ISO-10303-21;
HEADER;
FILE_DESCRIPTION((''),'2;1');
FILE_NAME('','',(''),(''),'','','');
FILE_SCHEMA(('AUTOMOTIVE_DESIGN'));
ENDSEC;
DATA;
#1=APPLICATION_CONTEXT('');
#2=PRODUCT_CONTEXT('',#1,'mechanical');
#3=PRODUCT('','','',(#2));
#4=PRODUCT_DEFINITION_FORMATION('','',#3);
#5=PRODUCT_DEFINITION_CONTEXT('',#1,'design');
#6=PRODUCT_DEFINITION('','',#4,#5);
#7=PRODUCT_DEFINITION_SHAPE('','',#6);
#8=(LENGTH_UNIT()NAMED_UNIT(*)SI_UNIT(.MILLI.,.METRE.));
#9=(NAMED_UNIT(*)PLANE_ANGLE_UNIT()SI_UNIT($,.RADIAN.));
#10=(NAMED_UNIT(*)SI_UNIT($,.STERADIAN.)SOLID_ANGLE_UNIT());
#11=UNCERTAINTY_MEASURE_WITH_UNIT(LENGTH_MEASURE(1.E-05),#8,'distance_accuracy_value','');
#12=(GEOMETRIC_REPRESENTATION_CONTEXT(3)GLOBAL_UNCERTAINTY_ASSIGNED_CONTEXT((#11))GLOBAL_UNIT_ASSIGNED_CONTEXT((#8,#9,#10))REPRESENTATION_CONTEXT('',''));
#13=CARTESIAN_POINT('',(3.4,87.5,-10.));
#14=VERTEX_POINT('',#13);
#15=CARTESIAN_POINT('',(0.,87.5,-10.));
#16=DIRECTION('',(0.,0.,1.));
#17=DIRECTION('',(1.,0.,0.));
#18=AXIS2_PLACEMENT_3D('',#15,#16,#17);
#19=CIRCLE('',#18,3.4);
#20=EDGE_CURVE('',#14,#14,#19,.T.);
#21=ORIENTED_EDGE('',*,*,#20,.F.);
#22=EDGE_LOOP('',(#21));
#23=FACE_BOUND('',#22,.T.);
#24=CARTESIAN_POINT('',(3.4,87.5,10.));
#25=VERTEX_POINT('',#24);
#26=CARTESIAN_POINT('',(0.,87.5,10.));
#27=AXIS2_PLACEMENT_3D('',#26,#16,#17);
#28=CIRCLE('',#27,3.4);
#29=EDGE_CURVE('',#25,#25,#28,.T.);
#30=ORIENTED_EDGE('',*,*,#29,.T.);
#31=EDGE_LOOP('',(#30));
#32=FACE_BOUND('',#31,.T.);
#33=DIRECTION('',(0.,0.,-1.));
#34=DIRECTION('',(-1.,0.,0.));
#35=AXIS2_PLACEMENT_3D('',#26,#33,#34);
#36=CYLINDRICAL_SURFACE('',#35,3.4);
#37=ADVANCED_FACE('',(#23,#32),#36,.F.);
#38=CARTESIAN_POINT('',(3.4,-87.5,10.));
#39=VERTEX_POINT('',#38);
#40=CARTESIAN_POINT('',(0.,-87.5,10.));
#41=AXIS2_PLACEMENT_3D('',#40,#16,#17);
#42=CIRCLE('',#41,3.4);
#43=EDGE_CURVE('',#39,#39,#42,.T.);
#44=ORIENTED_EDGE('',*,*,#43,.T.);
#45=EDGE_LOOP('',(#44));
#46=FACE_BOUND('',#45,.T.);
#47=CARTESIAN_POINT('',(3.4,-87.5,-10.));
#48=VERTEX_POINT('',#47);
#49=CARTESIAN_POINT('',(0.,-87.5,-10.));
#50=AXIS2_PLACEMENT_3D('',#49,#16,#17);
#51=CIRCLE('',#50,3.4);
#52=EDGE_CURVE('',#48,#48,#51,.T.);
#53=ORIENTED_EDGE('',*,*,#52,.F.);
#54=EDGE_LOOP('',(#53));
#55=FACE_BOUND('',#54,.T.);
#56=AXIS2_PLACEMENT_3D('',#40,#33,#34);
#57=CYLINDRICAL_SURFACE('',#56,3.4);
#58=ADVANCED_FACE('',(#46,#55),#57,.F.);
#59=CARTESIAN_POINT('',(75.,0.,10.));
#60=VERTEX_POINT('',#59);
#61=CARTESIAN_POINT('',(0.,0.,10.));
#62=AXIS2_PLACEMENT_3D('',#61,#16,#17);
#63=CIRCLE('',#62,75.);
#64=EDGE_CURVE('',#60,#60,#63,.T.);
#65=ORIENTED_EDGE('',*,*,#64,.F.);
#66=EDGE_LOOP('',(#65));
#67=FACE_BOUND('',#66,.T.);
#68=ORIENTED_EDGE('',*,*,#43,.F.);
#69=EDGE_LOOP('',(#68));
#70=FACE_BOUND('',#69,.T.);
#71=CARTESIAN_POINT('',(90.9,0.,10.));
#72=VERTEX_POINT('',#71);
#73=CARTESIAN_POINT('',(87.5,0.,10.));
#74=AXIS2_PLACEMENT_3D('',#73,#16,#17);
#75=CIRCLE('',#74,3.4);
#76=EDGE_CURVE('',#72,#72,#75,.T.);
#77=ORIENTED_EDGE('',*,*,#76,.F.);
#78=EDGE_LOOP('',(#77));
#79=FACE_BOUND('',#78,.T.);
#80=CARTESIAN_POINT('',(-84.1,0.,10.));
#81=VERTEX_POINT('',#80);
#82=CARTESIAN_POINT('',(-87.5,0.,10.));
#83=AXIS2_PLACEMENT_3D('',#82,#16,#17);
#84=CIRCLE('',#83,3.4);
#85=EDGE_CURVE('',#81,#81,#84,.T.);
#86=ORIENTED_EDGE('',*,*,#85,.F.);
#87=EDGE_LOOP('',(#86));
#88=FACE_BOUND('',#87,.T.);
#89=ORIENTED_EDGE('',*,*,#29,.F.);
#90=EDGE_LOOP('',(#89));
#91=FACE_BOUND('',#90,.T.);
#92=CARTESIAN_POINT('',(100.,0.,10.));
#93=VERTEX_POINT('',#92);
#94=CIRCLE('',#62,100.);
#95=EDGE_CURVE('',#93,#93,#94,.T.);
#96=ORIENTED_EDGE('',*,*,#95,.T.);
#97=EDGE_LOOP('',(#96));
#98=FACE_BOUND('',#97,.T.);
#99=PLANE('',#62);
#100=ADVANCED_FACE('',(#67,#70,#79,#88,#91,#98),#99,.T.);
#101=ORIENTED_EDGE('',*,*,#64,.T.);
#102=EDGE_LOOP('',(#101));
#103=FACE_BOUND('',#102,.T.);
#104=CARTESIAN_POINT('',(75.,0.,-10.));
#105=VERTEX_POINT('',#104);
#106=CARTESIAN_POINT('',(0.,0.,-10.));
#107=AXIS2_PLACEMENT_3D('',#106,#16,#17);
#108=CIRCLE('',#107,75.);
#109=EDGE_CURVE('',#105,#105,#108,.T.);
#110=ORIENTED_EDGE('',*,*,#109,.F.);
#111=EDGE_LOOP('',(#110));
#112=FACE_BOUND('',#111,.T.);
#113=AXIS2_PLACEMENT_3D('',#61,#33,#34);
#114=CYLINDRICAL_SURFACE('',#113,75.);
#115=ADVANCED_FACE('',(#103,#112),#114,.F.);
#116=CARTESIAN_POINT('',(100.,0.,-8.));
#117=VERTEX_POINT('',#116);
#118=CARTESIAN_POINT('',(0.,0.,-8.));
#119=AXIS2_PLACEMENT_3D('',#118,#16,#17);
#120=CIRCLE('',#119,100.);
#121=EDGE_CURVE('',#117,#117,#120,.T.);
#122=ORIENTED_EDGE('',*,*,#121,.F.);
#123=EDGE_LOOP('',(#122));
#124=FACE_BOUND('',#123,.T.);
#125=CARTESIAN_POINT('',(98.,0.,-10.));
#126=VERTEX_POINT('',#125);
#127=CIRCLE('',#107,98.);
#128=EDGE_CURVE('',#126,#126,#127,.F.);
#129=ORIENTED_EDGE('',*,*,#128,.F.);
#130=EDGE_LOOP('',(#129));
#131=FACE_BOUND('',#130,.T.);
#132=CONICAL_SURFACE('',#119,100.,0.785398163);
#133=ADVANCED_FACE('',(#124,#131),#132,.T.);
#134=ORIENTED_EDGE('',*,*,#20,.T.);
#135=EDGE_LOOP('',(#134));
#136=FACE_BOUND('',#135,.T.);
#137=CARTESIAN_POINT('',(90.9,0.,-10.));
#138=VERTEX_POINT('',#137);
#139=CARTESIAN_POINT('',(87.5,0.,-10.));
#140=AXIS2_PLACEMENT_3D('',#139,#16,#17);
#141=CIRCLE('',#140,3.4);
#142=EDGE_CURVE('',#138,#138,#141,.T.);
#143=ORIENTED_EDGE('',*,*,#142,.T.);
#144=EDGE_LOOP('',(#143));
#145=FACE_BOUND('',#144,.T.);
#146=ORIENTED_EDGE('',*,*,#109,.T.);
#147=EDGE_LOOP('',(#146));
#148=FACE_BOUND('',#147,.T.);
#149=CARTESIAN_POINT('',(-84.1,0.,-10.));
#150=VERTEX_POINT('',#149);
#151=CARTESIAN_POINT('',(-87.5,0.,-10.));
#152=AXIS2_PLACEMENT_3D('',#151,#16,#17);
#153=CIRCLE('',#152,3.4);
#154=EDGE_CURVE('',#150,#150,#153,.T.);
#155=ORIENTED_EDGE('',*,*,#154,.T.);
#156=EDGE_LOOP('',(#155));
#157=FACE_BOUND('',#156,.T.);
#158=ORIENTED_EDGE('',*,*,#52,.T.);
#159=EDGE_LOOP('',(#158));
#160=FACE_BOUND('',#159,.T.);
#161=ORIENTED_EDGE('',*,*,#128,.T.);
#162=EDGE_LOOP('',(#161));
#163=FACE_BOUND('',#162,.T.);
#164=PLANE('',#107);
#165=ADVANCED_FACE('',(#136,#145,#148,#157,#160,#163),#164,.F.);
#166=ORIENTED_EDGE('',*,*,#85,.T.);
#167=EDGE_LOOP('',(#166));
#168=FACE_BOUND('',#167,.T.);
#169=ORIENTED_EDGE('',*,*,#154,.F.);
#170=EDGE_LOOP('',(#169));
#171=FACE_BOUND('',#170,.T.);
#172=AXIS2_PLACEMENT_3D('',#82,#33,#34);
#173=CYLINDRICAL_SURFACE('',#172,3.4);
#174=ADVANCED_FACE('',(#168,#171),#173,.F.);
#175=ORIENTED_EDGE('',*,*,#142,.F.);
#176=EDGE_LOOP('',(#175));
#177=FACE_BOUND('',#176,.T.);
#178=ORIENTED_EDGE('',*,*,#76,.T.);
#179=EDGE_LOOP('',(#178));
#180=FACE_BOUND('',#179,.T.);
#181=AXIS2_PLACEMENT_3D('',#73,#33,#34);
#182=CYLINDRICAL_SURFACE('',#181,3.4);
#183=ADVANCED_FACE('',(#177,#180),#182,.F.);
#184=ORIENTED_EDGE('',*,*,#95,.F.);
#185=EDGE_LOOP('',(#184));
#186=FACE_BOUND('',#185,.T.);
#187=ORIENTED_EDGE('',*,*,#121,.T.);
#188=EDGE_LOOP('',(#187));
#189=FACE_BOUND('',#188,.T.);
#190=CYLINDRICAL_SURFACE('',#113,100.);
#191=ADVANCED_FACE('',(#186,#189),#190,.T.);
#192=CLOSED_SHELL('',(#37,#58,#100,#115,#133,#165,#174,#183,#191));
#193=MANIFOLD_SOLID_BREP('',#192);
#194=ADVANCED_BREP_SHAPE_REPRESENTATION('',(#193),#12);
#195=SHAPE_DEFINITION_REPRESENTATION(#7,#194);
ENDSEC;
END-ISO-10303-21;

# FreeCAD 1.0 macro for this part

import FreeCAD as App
import Part
import Sketcher
from FreeCAD import Vector
Q = App.Units.Quantity


def edges_at(feature, points):
    """Names of the edges that pass closest to the given points."""
    edges = feature.Shape.Edges
    near = lambda p: min(range(len(edges)), key=lambda i: edges[i].distToShape(Part.Vertex(*p))[0])
    return sorted({f"Edge{near(p) + 1}" for p in points})

doc = App.newDocument("Part")
body = doc.addObject("PartDesign::Body", "Body")

sketch1 = doc.addObject("Sketcher::SketchObject", "Sketch")
body.addObject(sketch1)
sketch1.AttachmentSupport = (doc.XY_Plane, [""])
sketch1.MapMode = "FlatFace"
sketch1.addGeometry([
    Part.Circle(Vector(0, 0, 0), Vector(0, 0, 1), 100),
    Part.Circle(Vector(0, -87.5, 0), Vector(0, 0, 1), 3.4),
    Part.Circle(Vector(-87.5, 0, 0), Vector(0, 0, 1), 3.4),
    Part.Circle(Vector(0, 0, 0), Vector(0, 0, 1), 75),
    Part.Circle(Vector(87.5, 0, 0), Vector(0, 0, 1), 3.4),
    Part.Circle(Vector(0, 87.5, 0), Vector(0, 0, 1), 3.4),
], False)
sketch1.addConstraint([
    Sketcher.Constraint("Coincident", 0, 3, -1, 1),
    Sketcher.Constraint("Coincident", 3, 3, -1, 1),
    Sketcher.Constraint("Equal", 1, 2),
    Sketcher.Constraint("Equal", 2, 4),
    Sketcher.Constraint("Equal", 4, 5),
    Sketcher.Constraint("Symmetric", 2, 3, 4, 3, -1, 1),
    Sketcher.Constraint("Symmetric", 1, 3, 5, 3, -1, 1),
    Sketcher.Constraint("PointOnObject", 1, 3, -2),
    Sketcher.Constraint("PointOnObject", 2, 3, -1),
    Sketcher.Constraint("Diameter", 0, Q("200 mm")),
    Sketcher.Constraint("Diameter", 3, Q("150 mm")),
    Sketcher.Constraint("Diameter", 1, Q("6.8 mm")),
    Sketcher.Constraint("DistanceX", 2, 3, 4, 3, Q("175 mm")),
    Sketcher.Constraint("DistanceY", 1, 3, 5, 3, Q("175 mm")),
])
pad1 = doc.addObject("PartDesign::Pad", "Pad")
body.addObject(pad1)
pad1.Profile = sketch1
pad1.Length = 20
pad1.Midplane = True
doc.recompute()

chamfer = doc.addObject("PartDesign::Chamfer", "Chamfer")
body.addObject(chamfer)
chamfer.Base = (pad1, edges_at(pad1, [(-100, 0, -10)]))
chamfer.Size = 2

doc.recompute()
